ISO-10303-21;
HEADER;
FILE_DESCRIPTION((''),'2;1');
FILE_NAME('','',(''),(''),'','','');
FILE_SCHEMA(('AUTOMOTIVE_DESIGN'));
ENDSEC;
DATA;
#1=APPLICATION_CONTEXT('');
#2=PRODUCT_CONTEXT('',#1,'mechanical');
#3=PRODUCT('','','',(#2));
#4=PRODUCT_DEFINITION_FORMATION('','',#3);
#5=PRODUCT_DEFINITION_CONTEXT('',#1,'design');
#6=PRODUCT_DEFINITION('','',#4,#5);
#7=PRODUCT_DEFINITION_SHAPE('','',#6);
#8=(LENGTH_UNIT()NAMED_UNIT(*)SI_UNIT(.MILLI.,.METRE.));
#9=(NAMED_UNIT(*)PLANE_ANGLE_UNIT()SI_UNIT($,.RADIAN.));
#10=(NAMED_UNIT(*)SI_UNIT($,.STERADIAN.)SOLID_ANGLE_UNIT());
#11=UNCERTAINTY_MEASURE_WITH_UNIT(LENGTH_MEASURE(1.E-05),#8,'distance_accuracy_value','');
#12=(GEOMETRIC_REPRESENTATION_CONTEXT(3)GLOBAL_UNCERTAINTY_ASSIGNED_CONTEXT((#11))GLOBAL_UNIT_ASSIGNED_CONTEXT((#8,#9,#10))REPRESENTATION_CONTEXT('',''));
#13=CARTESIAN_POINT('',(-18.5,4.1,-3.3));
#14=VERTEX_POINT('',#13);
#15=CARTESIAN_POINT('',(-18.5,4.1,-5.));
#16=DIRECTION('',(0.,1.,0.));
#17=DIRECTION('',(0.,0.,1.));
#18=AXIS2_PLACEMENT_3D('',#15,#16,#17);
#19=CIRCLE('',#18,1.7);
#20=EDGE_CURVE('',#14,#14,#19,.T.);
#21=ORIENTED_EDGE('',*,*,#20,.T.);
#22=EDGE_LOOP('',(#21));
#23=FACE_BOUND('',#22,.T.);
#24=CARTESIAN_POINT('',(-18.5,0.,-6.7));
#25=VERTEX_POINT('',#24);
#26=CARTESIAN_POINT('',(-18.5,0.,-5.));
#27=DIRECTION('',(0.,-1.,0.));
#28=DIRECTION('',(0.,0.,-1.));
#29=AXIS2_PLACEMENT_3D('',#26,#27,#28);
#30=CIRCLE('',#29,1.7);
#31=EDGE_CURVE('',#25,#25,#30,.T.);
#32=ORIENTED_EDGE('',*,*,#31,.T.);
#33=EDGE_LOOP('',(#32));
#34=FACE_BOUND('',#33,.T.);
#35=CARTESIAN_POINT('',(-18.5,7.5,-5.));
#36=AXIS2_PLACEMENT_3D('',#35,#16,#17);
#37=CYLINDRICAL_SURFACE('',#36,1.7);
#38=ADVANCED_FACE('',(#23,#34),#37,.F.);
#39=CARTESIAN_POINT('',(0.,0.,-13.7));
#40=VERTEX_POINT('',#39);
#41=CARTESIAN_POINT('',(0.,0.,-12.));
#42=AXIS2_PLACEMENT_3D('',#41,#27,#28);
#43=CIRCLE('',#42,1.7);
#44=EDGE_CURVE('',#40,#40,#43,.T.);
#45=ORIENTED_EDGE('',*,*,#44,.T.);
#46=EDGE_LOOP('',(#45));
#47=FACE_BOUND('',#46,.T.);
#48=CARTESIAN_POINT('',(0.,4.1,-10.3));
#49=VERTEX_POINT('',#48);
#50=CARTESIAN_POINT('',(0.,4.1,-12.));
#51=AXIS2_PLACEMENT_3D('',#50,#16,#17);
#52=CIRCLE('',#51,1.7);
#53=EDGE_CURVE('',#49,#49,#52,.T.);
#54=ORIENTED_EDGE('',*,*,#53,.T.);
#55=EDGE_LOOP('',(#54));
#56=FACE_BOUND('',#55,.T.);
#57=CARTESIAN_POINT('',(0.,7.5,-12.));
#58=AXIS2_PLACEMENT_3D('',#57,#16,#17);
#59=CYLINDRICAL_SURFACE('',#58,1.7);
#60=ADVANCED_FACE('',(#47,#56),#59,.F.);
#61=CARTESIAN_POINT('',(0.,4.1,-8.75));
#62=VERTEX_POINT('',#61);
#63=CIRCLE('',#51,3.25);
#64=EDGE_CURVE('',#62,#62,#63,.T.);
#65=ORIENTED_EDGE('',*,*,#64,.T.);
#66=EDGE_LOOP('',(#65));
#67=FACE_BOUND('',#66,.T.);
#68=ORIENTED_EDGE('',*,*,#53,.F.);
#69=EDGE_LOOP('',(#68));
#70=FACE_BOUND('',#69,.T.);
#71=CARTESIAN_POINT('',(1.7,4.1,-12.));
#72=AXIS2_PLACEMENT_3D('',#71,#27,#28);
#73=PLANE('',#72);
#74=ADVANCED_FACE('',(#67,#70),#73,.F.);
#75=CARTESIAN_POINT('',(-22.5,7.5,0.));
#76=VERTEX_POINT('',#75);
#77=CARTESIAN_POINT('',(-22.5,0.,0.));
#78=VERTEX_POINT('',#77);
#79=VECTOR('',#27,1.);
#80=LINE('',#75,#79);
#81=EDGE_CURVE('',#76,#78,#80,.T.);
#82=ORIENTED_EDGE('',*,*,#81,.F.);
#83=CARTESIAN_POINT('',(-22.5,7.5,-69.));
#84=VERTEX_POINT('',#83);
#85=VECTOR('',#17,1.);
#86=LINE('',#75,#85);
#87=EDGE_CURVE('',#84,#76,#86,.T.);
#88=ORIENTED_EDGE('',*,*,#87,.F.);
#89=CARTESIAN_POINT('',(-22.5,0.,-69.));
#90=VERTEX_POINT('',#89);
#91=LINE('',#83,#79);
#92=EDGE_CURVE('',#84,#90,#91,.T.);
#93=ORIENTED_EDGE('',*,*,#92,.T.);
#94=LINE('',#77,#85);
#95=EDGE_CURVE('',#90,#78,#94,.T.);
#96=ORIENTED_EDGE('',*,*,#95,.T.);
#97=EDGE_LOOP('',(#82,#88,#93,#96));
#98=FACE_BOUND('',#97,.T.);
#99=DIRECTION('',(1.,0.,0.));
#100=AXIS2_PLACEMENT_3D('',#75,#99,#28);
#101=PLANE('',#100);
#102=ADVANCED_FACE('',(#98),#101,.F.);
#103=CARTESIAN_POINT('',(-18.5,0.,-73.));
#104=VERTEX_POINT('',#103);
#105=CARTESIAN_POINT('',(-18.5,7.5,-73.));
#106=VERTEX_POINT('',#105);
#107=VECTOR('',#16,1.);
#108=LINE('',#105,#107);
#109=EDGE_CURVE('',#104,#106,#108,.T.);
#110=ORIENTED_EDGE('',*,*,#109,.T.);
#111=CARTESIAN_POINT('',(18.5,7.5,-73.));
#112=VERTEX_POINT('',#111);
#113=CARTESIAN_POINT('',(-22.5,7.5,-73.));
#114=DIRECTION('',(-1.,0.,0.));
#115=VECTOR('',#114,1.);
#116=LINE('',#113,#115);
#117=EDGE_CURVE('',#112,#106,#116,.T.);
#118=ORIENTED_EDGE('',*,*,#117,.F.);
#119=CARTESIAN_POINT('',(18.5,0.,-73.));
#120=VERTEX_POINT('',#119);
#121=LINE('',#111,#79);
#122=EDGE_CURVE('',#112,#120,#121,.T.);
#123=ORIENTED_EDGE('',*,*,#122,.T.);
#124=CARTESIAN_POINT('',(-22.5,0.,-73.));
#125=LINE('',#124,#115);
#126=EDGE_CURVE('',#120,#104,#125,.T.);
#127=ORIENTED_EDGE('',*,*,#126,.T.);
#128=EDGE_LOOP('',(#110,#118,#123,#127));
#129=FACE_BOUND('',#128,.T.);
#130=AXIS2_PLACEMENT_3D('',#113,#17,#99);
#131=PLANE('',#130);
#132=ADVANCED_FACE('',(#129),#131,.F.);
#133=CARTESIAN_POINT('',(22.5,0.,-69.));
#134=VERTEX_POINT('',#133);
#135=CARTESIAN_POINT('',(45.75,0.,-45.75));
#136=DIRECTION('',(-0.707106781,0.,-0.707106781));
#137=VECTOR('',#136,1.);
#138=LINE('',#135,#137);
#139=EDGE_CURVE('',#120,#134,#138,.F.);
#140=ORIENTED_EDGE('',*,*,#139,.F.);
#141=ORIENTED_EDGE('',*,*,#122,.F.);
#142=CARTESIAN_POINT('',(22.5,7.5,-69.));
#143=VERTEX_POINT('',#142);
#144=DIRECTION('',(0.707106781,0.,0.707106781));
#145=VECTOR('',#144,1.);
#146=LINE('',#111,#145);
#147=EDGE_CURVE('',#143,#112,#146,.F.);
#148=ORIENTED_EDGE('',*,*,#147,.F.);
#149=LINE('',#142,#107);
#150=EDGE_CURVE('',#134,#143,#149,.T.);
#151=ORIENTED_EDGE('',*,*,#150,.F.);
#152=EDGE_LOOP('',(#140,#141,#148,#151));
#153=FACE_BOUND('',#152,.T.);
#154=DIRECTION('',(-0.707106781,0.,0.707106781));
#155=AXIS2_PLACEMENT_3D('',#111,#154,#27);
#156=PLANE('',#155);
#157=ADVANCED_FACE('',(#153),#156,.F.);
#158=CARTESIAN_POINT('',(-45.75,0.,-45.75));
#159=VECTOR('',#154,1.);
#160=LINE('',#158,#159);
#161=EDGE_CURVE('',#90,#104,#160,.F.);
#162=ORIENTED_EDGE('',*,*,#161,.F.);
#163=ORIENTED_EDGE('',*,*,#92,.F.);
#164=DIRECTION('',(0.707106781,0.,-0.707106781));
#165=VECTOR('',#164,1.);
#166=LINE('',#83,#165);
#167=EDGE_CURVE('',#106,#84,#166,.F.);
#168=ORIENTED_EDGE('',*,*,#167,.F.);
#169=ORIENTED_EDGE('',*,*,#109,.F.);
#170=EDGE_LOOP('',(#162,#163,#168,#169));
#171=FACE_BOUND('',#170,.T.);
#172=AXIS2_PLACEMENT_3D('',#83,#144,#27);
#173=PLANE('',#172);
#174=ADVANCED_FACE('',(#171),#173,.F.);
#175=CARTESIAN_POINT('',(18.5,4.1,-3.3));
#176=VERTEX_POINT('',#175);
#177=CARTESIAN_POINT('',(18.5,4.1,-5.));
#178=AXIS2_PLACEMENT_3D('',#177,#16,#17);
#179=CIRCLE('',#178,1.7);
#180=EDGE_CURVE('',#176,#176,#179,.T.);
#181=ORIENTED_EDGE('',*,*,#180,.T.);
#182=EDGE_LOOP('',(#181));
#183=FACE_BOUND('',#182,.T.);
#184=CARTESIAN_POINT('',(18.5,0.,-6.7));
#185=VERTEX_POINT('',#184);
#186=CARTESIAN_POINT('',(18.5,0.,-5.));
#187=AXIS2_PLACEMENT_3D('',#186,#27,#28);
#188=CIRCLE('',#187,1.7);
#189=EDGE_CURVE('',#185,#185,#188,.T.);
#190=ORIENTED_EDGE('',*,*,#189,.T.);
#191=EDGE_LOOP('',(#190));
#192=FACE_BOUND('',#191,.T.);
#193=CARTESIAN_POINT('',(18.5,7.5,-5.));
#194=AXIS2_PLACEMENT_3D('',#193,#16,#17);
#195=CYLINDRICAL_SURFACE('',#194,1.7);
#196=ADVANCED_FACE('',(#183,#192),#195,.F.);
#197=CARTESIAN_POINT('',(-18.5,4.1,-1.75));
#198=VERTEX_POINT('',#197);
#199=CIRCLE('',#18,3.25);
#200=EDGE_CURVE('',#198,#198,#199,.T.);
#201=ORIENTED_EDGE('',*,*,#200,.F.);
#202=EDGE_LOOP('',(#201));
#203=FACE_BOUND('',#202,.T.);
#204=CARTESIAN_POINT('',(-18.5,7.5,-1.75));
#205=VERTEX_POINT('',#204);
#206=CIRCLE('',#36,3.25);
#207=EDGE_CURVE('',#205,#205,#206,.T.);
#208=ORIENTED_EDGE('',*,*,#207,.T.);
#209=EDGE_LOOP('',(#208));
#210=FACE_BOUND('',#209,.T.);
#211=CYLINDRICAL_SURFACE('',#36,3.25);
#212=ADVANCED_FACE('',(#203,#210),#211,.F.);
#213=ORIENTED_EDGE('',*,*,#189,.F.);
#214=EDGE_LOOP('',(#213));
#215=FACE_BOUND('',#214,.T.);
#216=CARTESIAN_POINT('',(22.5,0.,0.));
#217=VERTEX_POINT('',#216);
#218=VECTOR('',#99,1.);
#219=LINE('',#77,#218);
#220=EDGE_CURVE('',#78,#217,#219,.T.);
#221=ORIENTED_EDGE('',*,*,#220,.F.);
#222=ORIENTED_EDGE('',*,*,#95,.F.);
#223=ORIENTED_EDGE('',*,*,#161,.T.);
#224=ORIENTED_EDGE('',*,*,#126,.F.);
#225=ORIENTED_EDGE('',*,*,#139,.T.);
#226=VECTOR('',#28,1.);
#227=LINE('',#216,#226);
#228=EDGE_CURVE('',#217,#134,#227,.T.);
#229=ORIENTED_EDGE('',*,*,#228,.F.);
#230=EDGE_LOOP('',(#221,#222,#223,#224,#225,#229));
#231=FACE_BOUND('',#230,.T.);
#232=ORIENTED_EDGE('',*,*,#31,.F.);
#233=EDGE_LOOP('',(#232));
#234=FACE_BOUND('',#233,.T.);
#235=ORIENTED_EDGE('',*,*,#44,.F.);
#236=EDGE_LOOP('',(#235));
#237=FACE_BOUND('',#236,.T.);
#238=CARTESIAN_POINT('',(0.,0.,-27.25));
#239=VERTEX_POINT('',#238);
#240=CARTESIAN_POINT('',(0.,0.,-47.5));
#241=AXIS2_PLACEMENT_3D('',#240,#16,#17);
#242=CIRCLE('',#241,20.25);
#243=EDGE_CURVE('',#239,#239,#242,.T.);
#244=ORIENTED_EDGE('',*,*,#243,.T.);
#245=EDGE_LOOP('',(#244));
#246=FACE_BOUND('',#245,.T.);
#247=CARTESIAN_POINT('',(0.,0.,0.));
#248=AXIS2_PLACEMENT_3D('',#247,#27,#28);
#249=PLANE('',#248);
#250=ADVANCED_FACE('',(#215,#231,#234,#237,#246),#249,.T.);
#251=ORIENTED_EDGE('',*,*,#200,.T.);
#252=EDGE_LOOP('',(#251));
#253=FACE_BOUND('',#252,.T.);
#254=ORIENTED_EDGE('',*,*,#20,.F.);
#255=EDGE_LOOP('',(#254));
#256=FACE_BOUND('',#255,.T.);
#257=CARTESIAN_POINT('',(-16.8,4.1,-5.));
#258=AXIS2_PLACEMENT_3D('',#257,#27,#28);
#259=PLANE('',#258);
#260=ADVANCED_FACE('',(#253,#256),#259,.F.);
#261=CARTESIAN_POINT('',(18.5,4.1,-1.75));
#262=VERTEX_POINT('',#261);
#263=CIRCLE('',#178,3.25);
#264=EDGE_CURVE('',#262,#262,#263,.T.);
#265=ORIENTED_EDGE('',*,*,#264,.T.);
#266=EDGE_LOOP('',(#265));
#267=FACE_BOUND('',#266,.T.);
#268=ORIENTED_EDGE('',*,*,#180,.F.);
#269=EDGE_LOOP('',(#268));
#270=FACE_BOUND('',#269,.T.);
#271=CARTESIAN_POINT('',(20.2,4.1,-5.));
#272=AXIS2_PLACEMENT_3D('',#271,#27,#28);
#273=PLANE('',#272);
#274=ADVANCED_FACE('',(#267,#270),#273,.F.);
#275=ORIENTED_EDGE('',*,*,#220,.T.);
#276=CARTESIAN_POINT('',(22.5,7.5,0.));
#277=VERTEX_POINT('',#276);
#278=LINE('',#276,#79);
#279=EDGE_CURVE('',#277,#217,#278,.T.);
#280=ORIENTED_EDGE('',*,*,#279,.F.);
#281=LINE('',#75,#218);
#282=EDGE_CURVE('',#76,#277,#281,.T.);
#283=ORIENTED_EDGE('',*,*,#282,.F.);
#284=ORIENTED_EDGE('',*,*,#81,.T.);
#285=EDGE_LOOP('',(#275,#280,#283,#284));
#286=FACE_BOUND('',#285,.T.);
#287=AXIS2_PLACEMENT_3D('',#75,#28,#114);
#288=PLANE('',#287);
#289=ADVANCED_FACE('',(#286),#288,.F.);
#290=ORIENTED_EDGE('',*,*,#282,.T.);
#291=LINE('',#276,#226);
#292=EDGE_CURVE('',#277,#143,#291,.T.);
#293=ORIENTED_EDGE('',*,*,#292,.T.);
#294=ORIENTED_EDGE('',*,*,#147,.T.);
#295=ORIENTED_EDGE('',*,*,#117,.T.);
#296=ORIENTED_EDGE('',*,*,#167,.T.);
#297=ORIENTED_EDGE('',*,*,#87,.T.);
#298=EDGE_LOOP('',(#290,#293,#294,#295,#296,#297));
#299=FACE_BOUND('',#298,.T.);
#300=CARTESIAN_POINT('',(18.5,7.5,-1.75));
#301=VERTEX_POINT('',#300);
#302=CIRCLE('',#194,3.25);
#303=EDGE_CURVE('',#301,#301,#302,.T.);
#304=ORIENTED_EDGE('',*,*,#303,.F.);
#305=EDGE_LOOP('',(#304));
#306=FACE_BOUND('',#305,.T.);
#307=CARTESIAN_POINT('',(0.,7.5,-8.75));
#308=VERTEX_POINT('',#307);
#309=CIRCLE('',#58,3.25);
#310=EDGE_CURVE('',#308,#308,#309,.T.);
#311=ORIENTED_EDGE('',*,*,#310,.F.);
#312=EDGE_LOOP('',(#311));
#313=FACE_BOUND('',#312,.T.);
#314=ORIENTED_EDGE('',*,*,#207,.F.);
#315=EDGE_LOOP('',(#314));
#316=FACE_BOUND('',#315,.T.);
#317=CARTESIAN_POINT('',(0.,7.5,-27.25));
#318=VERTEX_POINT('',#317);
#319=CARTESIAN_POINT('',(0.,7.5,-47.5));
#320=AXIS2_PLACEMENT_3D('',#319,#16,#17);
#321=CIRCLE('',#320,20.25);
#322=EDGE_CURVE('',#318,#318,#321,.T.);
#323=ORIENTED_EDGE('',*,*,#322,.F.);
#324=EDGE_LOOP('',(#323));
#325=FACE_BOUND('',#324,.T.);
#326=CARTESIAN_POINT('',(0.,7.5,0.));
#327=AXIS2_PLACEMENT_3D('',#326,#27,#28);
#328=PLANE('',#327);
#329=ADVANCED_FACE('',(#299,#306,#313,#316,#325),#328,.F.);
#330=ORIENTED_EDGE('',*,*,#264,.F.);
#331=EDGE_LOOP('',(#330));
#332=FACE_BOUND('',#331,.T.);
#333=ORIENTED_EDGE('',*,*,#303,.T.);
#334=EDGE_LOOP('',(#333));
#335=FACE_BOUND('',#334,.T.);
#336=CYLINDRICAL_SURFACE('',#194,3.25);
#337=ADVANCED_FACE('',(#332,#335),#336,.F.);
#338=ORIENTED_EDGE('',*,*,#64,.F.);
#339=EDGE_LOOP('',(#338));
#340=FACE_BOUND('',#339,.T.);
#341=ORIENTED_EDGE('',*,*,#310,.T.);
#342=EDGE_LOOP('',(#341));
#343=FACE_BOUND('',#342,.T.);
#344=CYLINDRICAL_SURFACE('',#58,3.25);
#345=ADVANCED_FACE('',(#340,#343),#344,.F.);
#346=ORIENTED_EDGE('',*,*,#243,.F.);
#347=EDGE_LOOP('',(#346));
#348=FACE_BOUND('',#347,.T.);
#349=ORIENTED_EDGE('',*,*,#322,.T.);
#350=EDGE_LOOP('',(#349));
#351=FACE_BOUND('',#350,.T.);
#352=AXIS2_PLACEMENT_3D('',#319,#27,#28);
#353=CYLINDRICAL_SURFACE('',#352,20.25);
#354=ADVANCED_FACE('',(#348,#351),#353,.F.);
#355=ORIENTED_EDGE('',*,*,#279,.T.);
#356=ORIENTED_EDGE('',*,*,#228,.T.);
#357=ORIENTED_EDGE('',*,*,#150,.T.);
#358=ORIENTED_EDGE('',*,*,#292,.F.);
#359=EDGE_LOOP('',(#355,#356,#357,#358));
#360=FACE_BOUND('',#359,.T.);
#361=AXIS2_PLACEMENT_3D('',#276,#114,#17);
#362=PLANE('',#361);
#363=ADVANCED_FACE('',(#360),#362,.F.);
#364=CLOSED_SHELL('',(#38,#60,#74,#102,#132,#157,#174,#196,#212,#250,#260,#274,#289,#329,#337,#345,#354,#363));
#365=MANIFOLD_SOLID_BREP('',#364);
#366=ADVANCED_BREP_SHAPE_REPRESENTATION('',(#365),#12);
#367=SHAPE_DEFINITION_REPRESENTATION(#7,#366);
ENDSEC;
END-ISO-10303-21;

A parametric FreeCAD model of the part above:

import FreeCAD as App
import Part
import Sketcher


def edges_at(feature, points):
    """Names of the edges that pass closest to the given points."""
    edges = feature.Shape.Edges
    near = lambda p: min(range(len(edges)), key=lambda i: edges[i].distToShape(Part.Vertex(*p))[0])
    return sorted({f"Edge{near(p) + 1}" for p in points})

doc = App.newDocument("Part")
body = doc.addObject("PartDesign::Body", "Body")

# Sketch on XZ plane
sketch1 = body.newObject("Sketcher::SketchObject", "Sketch")
sketch1.AttachmentSupport = (doc.getObject("XZ_Plane"), [""])
sketch1.MapMode = "FlatFace"
sketch1.addGeometry(Part.LineSegment(App.Vector(-22, -73, 0), App.Vector(-22, 0, 0)), False)
sketch1.addGeometry(Part.LineSegment(App.Vector(-22, 0, 0), App.Vector(22, 0, 0)), False)
sketch1.addGeometry(Part.LineSegment(App.Vector(22, 0, 0), App.Vector(22, -73, 0)), False)
sketch1.addGeometry(Part.LineSegment(App.Vector(22, -73, 0), App.Vector(-22, -73, 0)), False)
sketch1.addGeometry(Part.Circle(App.Vector(0, -48, 0), App.Vector(0, 0, 1), 20), False)
sketch1.addConstraint(Sketcher.Constraint("Coincident", 0, 2, 1, 1))
sketch1.addConstraint(Sketcher.Constraint("Coincident", 1, 2, 2, 1))
sketch1.addConstraint(Sketcher.Constraint("Coincident", 2, 2, 3, 1))
sketch1.addConstraint(Sketcher.Constraint("Coincident", 3, 2, 0, 1))
sketch1.addConstraint(Sketcher.Constraint("Vertical", 0))
sketch1.addConstraint(Sketcher.Constraint("Horizontal", 1))
sketch1.addConstraint(Sketcher.Constraint("Vertical", 2))
sketch1.addConstraint(Sketcher.Constraint("Horizontal", 3))
sketch1.addConstraint(Sketcher.Constraint("Symmetric", 0, 2, 1, 2, -1, 1))
sketch1.addConstraint(Sketcher.Constraint("PointOnObject", 4, 3, -2))
sketch1.addConstraint(Sketcher.Constraint("Diameter", 4, 40.5))
sketch1.addConstraint(Sketcher.Constraint("DistanceX", 1, 1, 1, 2, 45.0))
sketch1.addConstraint(Sketcher.Constraint("DistanceY", 0, 1, 0, 2, 73.0))
sketch1.addConstraint(Sketcher.Constraint("DistanceY", 4, 3, -1, 1, 47.5))
pad1 = body.newObject("PartDesign::Pad", "Pad")
pad1.Profile = sketch1
pad1.Length = 7.5
pad1.Reversed = True
doc.recompute()

chamfer = body.newObject("PartDesign::Chamfer", "Chamfer")
chamfer.Base = (pad1, edges_at(pad1, [(-22.5, 3.75, -73), (22.5, 3.75, -73)]))
chamfer.Size = 4

# Sketch on XZ plane
sketch2 = body.newObject("Sketcher::SketchObject", "Sketch001")
sketch2.AttachmentSupport = (doc.getObject("XZ_Plane"), [""])
sketch2.MapMode = "FlatFace"
sketch2.AttachmentOffset = App.Placement(App.Vector(0, 0, -7.5), App.Rotation())
sketch2.addGeometry(Part.Circle(App.Vector(-18.5, -5, 0), App.Vector(0, 0, 1), 1.7), False)
sketch2.addGeometry(Part.Circle(App.Vector(0, -12, 0), App.Vector(0, 0, 1), 1.7), False)
sketch2.addGeometry(Part.Circle(App.Vector(18.5, -5, 0), App.Vector(0, 0, 1), 1.7), False)
sketch2.addConstraint(Sketcher.Constraint("Equal", 0, 1))
sketch2.addConstraint(Sketcher.Constraint("Equal", 1, 2))
sketch2.addConstraint(Sketcher.Constraint("Symmetric", 0, 3, 2, 3, -2))
sketch2.addConstraint(Sketcher.Constraint("PointOnObject", 1, 3, -2))
sketch2.addConstraint(Sketcher.Constraint("Diameter", 0, 3.4))
sketch2.addConstraint(Sketcher.Constraint("DistanceY", 0, 3, -1, 1, 5.0))
sketch2.addConstraint(Sketcher.Constraint("DistanceY", 1, 3, -1, 1, 12.0))
sketch2.addConstraint(Sketcher.Constraint("DistanceX", 0, 3, 2, 3, 37.0))
doc.recompute()
hole = body.newObject("PartDesign::Hole", "Hole")
hole.Profile = sketch2
hole.ThreadType = "None"
hole.Diameter = 3.4
hole.DepthType = "Dimension"
hole.Depth = 7.5
hole.DrillPoint = "Flat"
hole.HoleCutType = "Counterbore"
hole.HoleCutDiameter = 6.5
hole.HoleCutDepth = 3.4
hole.Reversed = True

doc.recompute()
